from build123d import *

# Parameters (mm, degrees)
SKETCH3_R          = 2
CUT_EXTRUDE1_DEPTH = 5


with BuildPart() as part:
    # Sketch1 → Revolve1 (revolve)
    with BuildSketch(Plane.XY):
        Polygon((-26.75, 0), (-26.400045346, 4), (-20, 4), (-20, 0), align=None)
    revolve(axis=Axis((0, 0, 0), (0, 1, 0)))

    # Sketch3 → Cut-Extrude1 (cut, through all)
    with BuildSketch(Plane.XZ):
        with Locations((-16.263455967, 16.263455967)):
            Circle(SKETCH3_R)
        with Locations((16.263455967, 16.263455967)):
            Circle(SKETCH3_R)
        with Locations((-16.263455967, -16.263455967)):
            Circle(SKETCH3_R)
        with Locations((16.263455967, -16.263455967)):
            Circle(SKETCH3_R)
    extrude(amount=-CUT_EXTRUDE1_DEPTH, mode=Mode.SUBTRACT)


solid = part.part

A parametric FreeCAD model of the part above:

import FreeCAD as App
import Part
import Sketcher

V = App.Vector
Q = App.Units.Quantity

doc = App.newDocument("Part")
params = doc.addObject("Spreadsheet::Sheet", "Params")
for row, (alias, value) in enumerate([
    ("sketch1_height", "4 mm"),
    ("sketch1_width", "6.75 mm"),
    ("revolution_angle", "360 deg"),
    ("sketch2_diameter", "4 mm"),
], start=1):
    params.set(f"A{row}", alias)
    params.set(f"B{row}", "=" + value)
    params.setAlias(f"B{row}", alias)

body = doc.addObject("PartDesign::Body", "Body")

# Sketch on XY plane
sketch1 = body.newObject("Sketcher::SketchObject", "Sketch")
sketch1.AttachmentSupport = (doc.getObject("XY_Plane"), [""])
sketch1.MapMode = "FlatFace"
sketch1.addGeometry([
    Part.LineSegment(V(-26.4, 4, 0), V(-26.8, 0, 0)),
    Part.LineSegment(V(-26.8, 0, 0), V(-20, 0, 0)),
    Part.LineSegment(V(-20, 0, 0), V(-20, 4, 0)),
    Part.LineSegment(V(-20, 4, 0), V(-26.4, 4, 0)),
], False)
sketch1.addConstraint([
    Sketcher.Constraint("Coincident", 0, 2, 1, 1),
    Sketcher.Constraint("Coincident", 1, 2, 2, 1),
    Sketcher.Constraint("Coincident", 2, 2, 3, 1),
    Sketcher.Constraint("Coincident", 3, 2, 0, 1),
    Sketcher.Constraint("Horizontal", 1),
    Sketcher.Constraint("Vertical", 2),
    Sketcher.Constraint("Horizontal", 3),
    Sketcher.Constraint("PointOnObject", 0, 2, -1),
    Sketcher.Constraint("DistanceY", 2, 1, 2, 2, 4.0),
    Sketcher.Constraint("Angle", 0, Q("-95 deg")),
    Sketcher.Constraint("DistanceX", 1, 2, -1, 1, 20.0),
    Sketcher.Constraint("DistanceX", 1, 1, 1, 2, 6.75),
])
sketch1.setExpression("Constraints[8]", "Params.sketch1_height")
sketch1.setExpression("Constraints[11]", "Params.sketch1_width")
revolution = body.newObject("PartDesign::Revolution", "Revolution")
revolution.Profile = sketch1
revolution.ReferenceAxis = (sketch1, ["V_Axis"])
revolution.setExpression("Angle", "Params.revolution_angle")

# Sketch on XZ plane
sketch2 = body.newObject("Sketcher::SketchObject", "Sketch001")
sketch2.AttachmentSupport = (doc.getObject("XZ_Plane"), [""])
sketch2.MapMode = "FlatFace"
sketch2.addGeometry([
    Part.Circle(V(-16.3, 16.3, 0), V(0, 0, 1), 2),
    Part.Circle(V(16.3, 16.3, 0), V(0, 0, 1), 2),
    Part.Circle(V(-16.3, -16.3, 0), V(0, 0, 1), 2),
    Part.Circle(V(16.3, -16.3, 0), V(0, 0, 1), 2),
], False)
sketch2.addConstraint([
    Sketcher.Constraint("Equal", 0, 1),
    Sketcher.Constraint("Equal", 1, 2),
    Sketcher.Constraint("Equal", 2, 3),
    Sketcher.Constraint("Symmetric", 1, 3, 2, 3, -1, 1),
    Sketcher.Constraint("Symmetric", 0, 3, 3, 3, -1, 1),
    Sketcher.Constraint("Symmetric", 0, 3, 1, 3, -2),
    Sketcher.Constraint("Diameter", 0, 4.0),
    Sketcher.Constraint("DistanceX", 0, 3, 1, 3, 32.526912),
    Sketcher.Constraint("DistanceY", 2, 3, 0, 3, 32.526912),
])
sketch2.setExpression("Constraints[6]", "Params.sketch2_diameter")
pocket1 = body.newObject("PartDesign::Pocket", "Pocket")
pocket1.Profile = sketch2
pocket1.Type = "ThroughAll"

doc.recompute()
